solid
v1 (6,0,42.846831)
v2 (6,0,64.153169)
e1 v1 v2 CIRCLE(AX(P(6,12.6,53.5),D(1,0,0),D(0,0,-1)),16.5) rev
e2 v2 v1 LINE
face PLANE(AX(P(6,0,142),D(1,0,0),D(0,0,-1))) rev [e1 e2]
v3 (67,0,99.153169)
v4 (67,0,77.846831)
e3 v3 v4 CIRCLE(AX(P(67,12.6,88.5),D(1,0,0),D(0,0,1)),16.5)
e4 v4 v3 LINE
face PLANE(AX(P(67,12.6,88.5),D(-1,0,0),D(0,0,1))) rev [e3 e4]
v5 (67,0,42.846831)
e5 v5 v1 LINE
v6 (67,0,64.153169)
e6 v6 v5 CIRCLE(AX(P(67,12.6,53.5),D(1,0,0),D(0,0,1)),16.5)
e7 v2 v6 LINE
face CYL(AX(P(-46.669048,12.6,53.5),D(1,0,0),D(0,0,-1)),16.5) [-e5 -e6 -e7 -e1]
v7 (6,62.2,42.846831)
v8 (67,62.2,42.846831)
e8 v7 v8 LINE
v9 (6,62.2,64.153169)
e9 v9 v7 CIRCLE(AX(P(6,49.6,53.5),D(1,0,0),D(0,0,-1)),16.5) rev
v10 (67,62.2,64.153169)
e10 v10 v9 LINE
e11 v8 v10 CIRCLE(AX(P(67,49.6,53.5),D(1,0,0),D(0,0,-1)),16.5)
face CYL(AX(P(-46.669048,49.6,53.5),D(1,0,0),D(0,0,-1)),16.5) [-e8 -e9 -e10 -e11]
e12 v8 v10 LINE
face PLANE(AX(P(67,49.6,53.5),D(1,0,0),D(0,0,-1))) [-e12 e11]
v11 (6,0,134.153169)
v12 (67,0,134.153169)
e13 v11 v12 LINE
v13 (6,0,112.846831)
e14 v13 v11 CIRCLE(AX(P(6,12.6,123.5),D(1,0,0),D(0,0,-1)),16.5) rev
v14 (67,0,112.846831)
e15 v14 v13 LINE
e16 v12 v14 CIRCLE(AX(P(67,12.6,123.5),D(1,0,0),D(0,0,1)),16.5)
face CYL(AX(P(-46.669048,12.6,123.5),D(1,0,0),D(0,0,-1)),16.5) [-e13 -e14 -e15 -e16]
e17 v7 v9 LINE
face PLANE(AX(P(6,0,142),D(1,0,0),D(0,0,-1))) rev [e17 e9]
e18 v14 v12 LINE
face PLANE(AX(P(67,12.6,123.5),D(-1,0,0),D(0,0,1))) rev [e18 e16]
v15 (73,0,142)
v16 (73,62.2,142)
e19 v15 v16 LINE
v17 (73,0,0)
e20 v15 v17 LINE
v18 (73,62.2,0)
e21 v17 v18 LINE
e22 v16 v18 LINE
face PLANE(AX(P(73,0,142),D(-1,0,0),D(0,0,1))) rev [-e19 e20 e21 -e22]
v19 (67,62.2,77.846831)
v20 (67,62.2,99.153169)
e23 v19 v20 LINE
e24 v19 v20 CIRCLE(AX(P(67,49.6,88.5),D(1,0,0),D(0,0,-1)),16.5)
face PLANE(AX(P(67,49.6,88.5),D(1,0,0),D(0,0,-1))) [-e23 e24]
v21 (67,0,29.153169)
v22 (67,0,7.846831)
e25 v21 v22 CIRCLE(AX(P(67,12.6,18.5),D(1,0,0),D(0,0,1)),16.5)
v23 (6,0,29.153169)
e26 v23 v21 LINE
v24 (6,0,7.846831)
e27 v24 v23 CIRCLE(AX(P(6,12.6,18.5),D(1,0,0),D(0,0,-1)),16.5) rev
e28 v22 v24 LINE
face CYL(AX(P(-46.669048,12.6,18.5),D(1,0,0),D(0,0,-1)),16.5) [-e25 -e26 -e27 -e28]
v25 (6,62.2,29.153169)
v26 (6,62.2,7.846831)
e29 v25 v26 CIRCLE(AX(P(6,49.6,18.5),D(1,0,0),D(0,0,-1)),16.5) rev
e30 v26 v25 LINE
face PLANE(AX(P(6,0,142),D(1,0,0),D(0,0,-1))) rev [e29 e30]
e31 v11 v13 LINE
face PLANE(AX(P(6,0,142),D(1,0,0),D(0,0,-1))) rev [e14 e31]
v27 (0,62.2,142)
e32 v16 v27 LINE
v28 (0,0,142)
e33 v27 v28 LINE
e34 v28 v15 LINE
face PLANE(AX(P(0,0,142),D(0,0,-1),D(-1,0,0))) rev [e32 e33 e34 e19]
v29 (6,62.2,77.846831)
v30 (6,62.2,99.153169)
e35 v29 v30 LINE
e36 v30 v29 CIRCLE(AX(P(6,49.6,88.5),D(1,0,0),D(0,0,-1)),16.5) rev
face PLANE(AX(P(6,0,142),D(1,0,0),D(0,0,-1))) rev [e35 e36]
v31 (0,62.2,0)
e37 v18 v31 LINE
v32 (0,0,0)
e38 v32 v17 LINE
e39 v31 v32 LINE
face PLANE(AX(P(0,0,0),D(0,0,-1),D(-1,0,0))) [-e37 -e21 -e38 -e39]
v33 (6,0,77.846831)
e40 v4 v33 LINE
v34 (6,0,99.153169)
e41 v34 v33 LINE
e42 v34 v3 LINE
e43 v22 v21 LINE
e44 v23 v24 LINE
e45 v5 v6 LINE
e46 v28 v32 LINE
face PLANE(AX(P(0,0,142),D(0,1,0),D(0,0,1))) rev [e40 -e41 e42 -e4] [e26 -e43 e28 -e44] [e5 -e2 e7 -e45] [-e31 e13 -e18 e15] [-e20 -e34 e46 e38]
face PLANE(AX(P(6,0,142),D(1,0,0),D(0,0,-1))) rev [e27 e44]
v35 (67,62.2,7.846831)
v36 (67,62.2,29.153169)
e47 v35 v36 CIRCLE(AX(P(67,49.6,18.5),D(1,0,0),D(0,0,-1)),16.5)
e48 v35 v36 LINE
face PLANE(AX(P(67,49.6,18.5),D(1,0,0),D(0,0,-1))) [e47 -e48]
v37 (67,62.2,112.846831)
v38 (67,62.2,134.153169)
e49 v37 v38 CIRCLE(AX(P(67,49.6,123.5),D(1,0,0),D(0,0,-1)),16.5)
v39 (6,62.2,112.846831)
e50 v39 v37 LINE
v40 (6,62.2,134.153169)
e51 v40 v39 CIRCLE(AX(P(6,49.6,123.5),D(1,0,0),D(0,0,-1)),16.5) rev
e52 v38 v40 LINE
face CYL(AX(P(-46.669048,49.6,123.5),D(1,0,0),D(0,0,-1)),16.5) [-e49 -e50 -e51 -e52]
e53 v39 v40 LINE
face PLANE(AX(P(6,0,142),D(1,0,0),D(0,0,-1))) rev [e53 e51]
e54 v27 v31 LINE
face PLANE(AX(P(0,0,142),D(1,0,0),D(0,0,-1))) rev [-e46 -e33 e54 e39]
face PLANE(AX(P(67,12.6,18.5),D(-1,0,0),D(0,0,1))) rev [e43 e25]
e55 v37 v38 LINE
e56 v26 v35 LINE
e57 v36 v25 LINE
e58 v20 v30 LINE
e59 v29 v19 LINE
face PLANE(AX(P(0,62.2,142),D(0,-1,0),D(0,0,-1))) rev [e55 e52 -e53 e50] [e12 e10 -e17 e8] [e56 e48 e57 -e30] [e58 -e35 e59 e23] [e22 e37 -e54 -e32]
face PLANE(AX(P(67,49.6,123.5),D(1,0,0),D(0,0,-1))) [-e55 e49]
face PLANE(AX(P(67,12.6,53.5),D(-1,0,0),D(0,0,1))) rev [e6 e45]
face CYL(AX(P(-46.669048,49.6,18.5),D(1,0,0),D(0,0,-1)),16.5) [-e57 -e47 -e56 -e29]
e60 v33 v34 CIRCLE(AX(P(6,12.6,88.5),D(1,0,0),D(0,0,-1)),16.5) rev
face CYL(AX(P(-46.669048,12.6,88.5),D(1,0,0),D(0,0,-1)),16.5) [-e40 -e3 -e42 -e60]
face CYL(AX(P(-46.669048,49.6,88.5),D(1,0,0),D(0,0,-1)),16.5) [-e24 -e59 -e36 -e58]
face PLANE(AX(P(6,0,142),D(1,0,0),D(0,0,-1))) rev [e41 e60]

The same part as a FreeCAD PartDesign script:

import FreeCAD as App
import Part
import Sketcher

V = App.Vector


def add_polygon(sketch, points):
    """Adds a closed chain of lines whose ends are joined by coincident constraints."""
    first, n = sketch.GeometryCount, len(points)
    for a, b in zip(points, points[1:] + points[:1]):
        sketch.addGeometry(Part.LineSegment(App.Vector(*a, 0), App.Vector(*b, 0)), False)
    for i in range(n):
        sketch.addConstraint(Sketcher.Constraint("Coincident", first + i, 2, first + (i + 1) % n, 1))

doc = App.newDocument("Part")
body = doc.addObject("PartDesign::Body", "Body")

sketch1 = doc.addObject("Sketcher::SketchObject", "Sketch")
body.addObject(sketch1)
sketch1.AttachmentSupport = (doc.XY_Plane, [""])
sketch1.MapMode = "FlatFace"
add_polygon(sketch1, [(0, 62.2), (0, 0), (73, 0), (73, 62.2)])
sketch1.addConstraint([
    Sketcher.Constraint("Vertical", 0),
    Sketcher.Constraint("Horizontal", 1),
    Sketcher.Constraint("Vertical", 2),
    Sketcher.Constraint("Horizontal", 3),
    Sketcher.Constraint("Coincident", 0, 2, -1, 1),
    Sketcher.Constraint("DistanceX", 1, 1, 1, 2, 73.0),
    Sketcher.Constraint("DistanceY", 0, 2, 0, 1, 62.2),
])
pad1 = doc.addObject("PartDesign::Pad", "Pad")
body.addObject(pad1)
pad1.Profile = sketch1
pad1.Length = 142

sketch2 = doc.addObject("Sketcher::SketchObject", "Sketch001")
body.addObject(sketch2)
sketch2.AttachmentSupport = (doc.YZ_Plane, [""])
sketch2.MapMode = "FlatFace"
sketch2.AttachmentOffset = App.Placement(V(0, 0, 67), App.Rotation())
sketch2.addGeometry([
    Part.Circle(V(49.6, 123.5, 0), V(0, 0, 1), 16.5),
    Part.Circle(V(49.6, 88.5, 0), V(0, 0, 1), 16.5),
    Part.Circle(V(49.6, 53.5, 0), V(0, 0, 1), 16.5),
    Part.Circle(V(49.6, 18.5, 0), V(0, 0, 1), 16.5),
    Part.Circle(V(12.6, 123.5, 0), V(0, 0, 1), 16.5),
    Part.Circle(V(12.6, 88.5, 0), V(0, 0, 1), 16.5),
    Part.Circle(V(12.6, 53.5, 0), V(0, 0, 1), 16.5),
    Part.Circle(V(12.6, 18.5, 0), V(0, 0, 1), 16.5),
], False)
sketch2.addConstraint([
    Sketcher.Constraint("Equal", 0, 1),
    Sketcher.Constraint("Equal", 1, 2),
    Sketcher.Constraint("Equal", 2, 3),
    Sketcher.Constraint("Equal", 3, 4),
    Sketcher.Constraint("Equal", 4, 5),
    Sketcher.Constraint("Equal", 5, 6),
    Sketcher.Constraint("Equal", 6, 7),
    Sketcher.Constraint("Horizontal", 0, 3, 4, 3),
    Sketcher.Constraint("Horizontal", 1, 3, 5, 3),
    Sketcher.Constraint("Horizontal", 2, 3, 6, 3),
    Sketcher.Constraint("Horizontal", 3, 3, 7, 3),
    Sketcher.Constraint("Vertical", 0, 3, 1, 3),
    Sketcher.Constraint("Vertical", 1, 3, 2, 3),
    Sketcher.Constraint("Vertical", 2, 3, 3, 3),
    Sketcher.Constraint("Vertical", 4, 3, 5, 3),
    Sketcher.Constraint("Vertical", 5, 3, 6, 3),
    Sketcher.Constraint("Vertical", 6, 3, 7, 3),
    Sketcher.Constraint("Diameter", 0, 33.0),
    Sketcher.Constraint("DistanceY", 1, 3, 0, 3, 35.0),
    Sketcher.Constraint("DistanceY", 2, 3, 1, 3, 35.0),
    Sketcher.Constraint("DistanceY", 3, 3, 2, 3, 35.0),
    Sketcher.Constraint("DistanceX", 4, 3, 0, 3, 37.0),
    Sketcher.Constraint("DistanceX", -1, 1, 0, 3, 49.6),
    Sketcher.Constraint("DistanceY", -1, 1, 0, 3, 123.5),
])
pad2 = doc.addObject("PartDesign::Pad", "Pad001")
body.addObject(pad2)
pad2.Profile = sketch2
pad2.Length = 61
pad2.Reversed = True

doc.recompute()
